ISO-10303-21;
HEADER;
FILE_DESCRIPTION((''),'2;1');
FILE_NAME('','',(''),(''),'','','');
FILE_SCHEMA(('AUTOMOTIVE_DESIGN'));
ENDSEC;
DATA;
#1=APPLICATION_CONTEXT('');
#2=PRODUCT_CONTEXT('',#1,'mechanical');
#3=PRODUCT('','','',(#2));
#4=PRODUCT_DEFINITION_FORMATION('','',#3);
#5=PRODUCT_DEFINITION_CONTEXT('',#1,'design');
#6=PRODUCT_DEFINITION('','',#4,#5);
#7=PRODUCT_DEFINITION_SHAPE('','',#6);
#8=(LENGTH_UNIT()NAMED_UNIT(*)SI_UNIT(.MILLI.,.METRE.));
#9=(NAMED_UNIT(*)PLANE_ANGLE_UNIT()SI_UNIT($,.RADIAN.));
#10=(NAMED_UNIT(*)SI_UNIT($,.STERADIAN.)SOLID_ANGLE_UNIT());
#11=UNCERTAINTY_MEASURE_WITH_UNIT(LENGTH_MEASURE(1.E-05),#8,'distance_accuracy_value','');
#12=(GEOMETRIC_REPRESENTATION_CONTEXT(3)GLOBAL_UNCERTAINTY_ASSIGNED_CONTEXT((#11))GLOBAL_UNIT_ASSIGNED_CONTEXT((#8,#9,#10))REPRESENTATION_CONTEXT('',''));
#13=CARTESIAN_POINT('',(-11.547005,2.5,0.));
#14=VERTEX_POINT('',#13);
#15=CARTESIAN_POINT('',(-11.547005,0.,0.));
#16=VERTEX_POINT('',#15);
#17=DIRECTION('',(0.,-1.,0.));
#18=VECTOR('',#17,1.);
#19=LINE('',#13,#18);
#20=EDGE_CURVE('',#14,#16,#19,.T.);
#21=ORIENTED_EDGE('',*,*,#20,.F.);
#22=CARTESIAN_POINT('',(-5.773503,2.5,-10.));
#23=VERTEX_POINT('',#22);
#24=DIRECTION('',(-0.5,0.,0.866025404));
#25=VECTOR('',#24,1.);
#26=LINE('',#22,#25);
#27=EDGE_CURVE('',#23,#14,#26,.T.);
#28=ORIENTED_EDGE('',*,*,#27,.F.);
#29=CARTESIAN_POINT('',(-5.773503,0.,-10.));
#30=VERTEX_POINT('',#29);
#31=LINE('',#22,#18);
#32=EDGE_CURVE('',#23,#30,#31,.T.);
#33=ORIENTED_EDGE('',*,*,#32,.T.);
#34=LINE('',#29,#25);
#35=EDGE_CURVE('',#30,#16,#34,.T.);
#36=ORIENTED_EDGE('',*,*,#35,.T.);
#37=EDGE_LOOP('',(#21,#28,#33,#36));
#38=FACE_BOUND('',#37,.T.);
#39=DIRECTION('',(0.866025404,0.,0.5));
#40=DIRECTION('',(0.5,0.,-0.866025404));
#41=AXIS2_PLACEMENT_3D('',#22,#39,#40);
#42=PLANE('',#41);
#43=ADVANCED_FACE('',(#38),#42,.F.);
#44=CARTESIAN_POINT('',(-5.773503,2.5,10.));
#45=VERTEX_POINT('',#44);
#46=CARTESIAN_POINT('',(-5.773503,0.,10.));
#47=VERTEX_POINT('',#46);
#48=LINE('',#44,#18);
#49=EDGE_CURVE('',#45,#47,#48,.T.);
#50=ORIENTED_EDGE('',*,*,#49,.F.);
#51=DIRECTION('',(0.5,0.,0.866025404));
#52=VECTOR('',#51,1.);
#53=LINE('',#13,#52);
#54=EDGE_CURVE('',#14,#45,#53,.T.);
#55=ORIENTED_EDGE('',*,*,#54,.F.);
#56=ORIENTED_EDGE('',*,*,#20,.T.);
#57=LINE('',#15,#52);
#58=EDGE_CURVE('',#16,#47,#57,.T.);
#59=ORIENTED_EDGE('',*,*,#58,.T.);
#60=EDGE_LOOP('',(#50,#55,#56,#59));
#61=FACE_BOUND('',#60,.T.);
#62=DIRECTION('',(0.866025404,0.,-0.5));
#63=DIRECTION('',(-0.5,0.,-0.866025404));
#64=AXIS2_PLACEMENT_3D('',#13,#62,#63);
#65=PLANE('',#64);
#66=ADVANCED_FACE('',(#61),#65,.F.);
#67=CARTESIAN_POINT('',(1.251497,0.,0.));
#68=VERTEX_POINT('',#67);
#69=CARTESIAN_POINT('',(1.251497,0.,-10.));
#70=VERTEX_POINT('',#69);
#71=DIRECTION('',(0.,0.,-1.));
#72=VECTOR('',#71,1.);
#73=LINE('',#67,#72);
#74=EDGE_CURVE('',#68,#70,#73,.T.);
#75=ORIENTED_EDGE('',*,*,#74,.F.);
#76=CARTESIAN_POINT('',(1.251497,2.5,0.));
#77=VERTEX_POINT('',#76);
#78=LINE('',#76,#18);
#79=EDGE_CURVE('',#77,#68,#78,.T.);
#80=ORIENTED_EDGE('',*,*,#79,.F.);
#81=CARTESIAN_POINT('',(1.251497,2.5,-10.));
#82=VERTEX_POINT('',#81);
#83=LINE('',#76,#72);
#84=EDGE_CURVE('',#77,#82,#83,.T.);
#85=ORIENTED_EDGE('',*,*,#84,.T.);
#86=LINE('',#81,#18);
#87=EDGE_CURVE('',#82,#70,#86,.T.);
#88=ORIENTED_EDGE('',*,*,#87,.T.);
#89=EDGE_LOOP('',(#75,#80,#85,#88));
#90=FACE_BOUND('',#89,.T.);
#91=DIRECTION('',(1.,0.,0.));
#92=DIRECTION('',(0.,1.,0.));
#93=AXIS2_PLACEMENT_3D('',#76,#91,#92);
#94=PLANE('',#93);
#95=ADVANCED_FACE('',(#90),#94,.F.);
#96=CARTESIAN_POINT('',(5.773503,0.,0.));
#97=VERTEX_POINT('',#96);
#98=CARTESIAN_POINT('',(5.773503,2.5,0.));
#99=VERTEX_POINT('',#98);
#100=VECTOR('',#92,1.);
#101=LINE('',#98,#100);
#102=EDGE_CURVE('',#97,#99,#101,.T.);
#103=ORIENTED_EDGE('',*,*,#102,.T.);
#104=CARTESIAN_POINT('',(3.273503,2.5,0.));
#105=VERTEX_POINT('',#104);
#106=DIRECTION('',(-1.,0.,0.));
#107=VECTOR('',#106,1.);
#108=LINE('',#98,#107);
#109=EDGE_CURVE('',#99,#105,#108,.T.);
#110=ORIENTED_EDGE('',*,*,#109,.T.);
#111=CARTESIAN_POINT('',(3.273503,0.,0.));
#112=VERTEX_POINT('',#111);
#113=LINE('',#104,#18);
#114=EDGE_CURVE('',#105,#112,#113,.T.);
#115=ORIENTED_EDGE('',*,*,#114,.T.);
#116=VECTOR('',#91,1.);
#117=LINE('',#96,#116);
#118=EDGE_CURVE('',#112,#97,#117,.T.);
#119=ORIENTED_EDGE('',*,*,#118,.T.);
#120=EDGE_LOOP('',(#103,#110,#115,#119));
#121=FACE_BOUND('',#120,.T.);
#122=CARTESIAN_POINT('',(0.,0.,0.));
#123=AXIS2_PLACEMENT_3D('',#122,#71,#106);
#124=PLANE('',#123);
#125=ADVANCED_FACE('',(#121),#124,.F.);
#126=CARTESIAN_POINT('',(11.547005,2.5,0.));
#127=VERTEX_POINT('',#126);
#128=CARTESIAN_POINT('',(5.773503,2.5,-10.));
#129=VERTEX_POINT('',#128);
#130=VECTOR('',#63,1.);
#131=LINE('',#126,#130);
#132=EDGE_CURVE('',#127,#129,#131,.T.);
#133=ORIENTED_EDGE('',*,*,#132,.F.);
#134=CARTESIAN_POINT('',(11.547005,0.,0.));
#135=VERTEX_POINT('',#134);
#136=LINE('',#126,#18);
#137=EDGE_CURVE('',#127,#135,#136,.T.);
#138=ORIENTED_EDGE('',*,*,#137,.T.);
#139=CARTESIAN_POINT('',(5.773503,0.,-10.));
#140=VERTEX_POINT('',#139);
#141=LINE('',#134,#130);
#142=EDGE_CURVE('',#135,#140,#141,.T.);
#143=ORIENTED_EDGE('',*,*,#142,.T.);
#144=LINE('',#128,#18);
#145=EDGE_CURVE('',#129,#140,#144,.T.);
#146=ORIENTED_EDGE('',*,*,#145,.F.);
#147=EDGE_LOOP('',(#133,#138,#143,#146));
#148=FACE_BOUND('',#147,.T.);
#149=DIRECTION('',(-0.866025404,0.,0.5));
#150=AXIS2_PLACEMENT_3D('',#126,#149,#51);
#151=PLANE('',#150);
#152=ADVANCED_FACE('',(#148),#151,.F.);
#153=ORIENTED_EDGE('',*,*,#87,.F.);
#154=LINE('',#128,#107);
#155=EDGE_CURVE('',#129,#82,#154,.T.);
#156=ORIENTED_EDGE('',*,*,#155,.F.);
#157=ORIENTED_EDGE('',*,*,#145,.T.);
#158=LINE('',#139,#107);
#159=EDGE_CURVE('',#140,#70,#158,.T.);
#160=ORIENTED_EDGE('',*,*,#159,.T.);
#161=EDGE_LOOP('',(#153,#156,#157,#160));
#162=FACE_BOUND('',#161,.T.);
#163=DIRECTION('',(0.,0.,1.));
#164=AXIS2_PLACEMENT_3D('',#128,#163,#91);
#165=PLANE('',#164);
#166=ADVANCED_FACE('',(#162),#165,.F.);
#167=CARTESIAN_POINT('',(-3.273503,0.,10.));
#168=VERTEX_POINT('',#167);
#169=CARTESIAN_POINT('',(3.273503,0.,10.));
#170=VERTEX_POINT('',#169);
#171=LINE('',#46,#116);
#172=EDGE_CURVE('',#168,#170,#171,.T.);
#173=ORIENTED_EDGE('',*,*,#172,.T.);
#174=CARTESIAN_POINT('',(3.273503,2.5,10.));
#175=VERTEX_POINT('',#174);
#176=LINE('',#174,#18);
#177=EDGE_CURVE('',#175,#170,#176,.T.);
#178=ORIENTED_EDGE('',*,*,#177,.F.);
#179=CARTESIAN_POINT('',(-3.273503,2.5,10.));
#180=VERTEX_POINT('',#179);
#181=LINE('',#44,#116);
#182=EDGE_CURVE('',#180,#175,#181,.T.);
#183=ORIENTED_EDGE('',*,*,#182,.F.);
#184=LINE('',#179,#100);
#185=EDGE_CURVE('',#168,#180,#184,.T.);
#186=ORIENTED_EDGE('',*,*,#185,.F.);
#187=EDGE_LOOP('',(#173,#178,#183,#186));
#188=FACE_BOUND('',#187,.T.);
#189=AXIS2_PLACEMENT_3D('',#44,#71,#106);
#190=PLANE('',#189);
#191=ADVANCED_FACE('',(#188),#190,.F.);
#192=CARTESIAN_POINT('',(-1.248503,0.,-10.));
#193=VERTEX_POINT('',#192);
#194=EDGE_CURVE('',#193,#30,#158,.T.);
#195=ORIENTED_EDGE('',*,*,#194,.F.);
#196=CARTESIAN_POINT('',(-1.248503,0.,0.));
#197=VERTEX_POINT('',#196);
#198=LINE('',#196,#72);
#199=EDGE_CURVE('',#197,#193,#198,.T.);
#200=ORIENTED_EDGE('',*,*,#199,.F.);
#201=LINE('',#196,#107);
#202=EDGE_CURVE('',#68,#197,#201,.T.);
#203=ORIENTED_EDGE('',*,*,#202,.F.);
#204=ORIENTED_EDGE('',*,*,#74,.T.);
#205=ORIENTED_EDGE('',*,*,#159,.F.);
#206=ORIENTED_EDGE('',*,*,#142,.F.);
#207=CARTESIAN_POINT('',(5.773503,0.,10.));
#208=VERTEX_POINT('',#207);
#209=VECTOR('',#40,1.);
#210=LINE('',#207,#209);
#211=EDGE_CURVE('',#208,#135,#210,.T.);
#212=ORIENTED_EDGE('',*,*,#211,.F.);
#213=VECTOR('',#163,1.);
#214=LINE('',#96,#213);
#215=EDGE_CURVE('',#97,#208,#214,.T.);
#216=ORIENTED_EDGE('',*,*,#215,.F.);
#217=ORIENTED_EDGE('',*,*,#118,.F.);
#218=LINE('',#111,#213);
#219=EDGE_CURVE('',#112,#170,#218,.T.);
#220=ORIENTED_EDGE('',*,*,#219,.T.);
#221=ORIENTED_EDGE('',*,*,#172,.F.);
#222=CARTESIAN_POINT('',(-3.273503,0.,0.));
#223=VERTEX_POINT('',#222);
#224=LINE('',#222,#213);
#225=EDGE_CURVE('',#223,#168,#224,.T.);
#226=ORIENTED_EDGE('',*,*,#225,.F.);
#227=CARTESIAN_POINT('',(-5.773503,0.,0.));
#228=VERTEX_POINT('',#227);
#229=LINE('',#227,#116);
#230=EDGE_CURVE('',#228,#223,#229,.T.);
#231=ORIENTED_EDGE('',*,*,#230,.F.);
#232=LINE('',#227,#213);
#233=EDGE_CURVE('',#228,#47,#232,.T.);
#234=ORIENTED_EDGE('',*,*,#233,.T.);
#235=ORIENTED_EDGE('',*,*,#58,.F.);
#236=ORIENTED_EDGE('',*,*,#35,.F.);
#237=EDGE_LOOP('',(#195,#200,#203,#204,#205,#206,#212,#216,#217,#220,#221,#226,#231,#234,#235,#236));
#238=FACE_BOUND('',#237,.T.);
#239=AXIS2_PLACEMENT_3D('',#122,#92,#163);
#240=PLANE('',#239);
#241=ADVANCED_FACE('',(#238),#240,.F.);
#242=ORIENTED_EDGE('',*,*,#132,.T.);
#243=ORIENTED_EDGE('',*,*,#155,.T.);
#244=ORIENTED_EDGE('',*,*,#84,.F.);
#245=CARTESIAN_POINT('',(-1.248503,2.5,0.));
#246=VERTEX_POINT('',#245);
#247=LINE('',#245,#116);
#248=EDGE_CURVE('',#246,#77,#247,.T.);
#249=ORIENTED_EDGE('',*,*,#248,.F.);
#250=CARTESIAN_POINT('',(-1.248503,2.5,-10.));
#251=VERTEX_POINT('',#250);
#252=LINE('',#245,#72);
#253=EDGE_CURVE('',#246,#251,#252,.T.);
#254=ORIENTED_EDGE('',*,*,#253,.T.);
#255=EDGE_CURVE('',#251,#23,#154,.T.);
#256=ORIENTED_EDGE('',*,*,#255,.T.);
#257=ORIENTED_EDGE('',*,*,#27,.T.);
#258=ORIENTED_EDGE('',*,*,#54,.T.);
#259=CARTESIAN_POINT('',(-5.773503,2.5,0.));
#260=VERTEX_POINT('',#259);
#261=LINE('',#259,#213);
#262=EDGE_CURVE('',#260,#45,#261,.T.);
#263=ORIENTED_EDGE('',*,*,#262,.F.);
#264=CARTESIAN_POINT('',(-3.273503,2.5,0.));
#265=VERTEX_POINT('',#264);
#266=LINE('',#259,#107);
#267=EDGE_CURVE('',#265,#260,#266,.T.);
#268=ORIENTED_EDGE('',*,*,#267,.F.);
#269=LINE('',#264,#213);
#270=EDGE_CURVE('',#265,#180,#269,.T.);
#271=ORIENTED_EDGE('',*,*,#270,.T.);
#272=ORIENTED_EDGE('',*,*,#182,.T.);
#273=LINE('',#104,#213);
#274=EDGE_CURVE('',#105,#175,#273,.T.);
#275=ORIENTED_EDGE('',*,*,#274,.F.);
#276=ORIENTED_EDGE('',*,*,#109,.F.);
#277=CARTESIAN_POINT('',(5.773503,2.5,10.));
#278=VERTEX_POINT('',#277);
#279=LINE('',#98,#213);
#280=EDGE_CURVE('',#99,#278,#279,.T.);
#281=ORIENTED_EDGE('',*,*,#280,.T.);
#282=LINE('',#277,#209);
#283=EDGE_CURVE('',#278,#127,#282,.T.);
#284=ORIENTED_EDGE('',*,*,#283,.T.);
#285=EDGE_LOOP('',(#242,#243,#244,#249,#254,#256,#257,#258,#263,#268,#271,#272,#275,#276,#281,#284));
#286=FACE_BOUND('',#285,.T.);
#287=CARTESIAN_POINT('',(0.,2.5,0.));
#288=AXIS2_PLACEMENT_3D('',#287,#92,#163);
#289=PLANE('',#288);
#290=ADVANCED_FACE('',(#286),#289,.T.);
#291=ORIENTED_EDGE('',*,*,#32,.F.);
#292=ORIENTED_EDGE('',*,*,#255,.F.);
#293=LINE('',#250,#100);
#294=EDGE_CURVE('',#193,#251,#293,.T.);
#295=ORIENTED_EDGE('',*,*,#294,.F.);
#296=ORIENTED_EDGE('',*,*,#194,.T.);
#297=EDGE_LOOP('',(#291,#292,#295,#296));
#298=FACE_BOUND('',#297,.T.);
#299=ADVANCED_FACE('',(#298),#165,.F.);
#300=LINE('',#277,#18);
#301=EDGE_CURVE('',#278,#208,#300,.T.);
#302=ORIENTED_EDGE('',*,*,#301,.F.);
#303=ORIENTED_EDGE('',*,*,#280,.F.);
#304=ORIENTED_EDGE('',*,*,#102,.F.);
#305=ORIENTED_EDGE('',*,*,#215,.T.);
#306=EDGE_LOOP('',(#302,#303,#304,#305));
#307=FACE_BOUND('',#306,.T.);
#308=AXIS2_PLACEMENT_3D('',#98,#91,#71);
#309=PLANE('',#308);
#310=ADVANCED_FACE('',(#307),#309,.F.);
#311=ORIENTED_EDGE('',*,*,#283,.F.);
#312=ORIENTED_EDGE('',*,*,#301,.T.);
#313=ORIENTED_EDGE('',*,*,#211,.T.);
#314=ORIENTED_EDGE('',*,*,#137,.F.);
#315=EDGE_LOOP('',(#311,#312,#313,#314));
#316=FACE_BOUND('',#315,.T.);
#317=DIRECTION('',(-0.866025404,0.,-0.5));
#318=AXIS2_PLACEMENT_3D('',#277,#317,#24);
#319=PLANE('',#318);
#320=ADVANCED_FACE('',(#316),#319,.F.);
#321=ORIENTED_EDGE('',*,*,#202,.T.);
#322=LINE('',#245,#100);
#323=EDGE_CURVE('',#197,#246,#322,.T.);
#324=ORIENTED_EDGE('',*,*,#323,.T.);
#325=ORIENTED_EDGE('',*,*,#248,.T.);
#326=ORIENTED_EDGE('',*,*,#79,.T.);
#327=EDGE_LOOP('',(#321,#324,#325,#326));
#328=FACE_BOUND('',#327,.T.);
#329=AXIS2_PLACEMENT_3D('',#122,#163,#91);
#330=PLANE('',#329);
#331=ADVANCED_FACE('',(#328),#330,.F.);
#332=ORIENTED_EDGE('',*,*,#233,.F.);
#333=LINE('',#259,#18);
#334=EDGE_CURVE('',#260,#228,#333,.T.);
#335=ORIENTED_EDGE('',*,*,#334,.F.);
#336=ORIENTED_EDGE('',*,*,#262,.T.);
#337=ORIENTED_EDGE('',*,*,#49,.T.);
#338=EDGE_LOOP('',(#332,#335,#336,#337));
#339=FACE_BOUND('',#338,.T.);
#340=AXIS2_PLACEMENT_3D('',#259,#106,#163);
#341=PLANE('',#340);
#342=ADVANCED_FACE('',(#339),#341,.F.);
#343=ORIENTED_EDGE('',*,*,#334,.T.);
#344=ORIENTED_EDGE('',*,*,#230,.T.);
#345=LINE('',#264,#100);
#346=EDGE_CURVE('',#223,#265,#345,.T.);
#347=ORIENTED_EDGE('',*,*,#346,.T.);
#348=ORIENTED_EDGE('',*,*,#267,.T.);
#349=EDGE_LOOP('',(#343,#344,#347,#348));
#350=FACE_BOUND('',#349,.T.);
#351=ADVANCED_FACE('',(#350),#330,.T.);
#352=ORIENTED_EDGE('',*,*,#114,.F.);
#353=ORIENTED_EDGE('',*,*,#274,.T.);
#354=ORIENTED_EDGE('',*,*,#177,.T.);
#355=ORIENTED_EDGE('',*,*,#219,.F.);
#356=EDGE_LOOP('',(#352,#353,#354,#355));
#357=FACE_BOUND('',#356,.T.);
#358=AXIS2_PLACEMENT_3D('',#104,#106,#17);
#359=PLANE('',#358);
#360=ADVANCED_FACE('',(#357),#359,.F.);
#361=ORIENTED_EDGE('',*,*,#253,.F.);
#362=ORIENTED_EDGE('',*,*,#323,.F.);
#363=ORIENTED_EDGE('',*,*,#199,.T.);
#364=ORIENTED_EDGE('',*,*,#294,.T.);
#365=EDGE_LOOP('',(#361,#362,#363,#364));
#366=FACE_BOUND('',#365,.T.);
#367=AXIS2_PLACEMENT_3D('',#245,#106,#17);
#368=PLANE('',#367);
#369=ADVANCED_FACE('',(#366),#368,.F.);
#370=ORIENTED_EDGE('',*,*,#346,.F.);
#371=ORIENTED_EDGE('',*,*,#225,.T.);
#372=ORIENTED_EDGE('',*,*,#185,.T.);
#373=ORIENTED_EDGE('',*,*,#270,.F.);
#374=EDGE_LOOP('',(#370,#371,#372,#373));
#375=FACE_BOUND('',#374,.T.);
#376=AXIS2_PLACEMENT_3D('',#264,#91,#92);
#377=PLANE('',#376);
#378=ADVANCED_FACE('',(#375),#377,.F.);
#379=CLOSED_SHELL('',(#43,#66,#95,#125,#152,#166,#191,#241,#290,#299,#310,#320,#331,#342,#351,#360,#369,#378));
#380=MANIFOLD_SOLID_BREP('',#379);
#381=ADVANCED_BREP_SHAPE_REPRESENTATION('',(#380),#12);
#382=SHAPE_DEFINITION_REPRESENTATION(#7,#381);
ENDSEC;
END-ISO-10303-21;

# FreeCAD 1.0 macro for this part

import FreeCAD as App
import Part
import Sketcher
Q = App.Units.Quantity

doc = App.newDocument("Part")
body = doc.addObject("PartDesign::Body", "Body")

sketch1 = doc.addObject("Sketcher::SketchObject", "Sketch")
body.addObject(sketch1)
sketch1.AttachmentSupport = (doc.XZ_Plane, [""])
sketch1.MapMode = "FlatFace"
sketch1.addGeometry(Part.LineSegment(App.Vector(12, 0, 0), App.Vector(6, -10, 0)), False)
sketch1.addGeometry(Part.LineSegment(App.Vector(6, -10, 0), App.Vector(-6, -10, 0)), False)
sketch1.addGeometry(Part.LineSegment(App.Vector(-6, -10, 0), App.Vector(-12, 0, 0)), False)
sketch1.addGeometry(Part.LineSegment(App.Vector(-12, 0, 0), App.Vector(-6, 10, 0)), False)
sketch1.addGeometry(Part.LineSegment(App.Vector(-6, 10, 0), App.Vector(6, 10, 0)), False)
sketch1.addGeometry(Part.LineSegment(App.Vector(6, 10, 0), App.Vector(12, 0, 0)), False)
sketch1.addConstraint(Sketcher.Constraint("Coincident", 0, 2, 1, 1))
sketch1.addConstraint(Sketcher.Constraint("Coincident", 1, 2, 2, 1))
sketch1.addConstraint(Sketcher.Constraint("Coincident", 2, 2, 3, 1))
sketch1.addConstraint(Sketcher.Constraint("Coincident", 3, 2, 4, 1))
sketch1.addConstraint(Sketcher.Constraint("Coincident", 4, 2, 5, 1))
sketch1.addConstraint(Sketcher.Constraint("Coincident", 5, 2, 0, 1))
sketch1.addConstraint(Sketcher.Constraint("Horizontal", 1))
sketch1.addConstraint(Sketcher.Constraint("Horizontal", 4))
sketch1.addConstraint(Sketcher.Constraint("Symmetric", 0, 2, 3, 2, -1, 1))
sketch1.addConstraint(Sketcher.Constraint("Symmetric", 2, 2, 5, 2, -1, 1))
sketch1.addConstraint(Sketcher.Constraint("PointOnObject", 2, 2, -1))
sketch1.addConstraint(Sketcher.Constraint("Parallel", 2, 5))
sketch1.addConstraint(Sketcher.Constraint("Vertical", 1, 2, 3, 2))
sketch1.addConstraint(Sketcher.Constraint("Angle", 0, Q("-120 deg")))
sketch1.addConstraint(Sketcher.Constraint("DistanceY", 0, 2, -1, 1, Q("10 mm")))
sketch1.addConstraint(Sketcher.Constraint("DistanceX", 1, 2, 1, 1, Q("11.547005 mm")))
pad1 = doc.addObject("PartDesign::Pad", "Pad")
body.addObject(pad1)
pad1.Profile = sketch1
pad1.Length = 2.5
pad1.Reversed = True

sketch2 = doc.addObject("Sketcher::SketchObject", "Sketch001")
body.addObject(sketch2)
sketch2.AttachmentSupport = (doc.XY_Plane, [""])
sketch2.MapMode = "FlatFace"
sketch2.AttachmentOffset = App.Placement(App.Vector(0, 0, 10), App.Rotation())
sketch2.addGeometry(Part.LineSegment(App.Vector(-5.8, 2.5, 0), App.Vector(-5.8, 0, 0)), False)
sketch2.addGeometry(Part.LineSegment(App.Vector(-5.8, 0, 0), App.Vector(-3.3, 0, 0)), False)
sketch2.addGeometry(Part.LineSegment(App.Vector(-3.3, 0, 0), App.Vector(-3.3, 2.5, 0)), False)
sketch2.addGeometry(Part.LineSegment(App.Vector(-3.3, 2.5, 0), App.Vector(-5.8, 2.5, 0)), False)
sketch2.addConstraint(Sketcher.Constraint("Coincident", 0, 2, 1, 1))
sketch2.addConstraint(Sketcher.Constraint("Coincident", 1, 2, 2, 1))
sketch2.addConstraint(Sketcher.Constraint("Coincident", 2, 2, 3, 1))
sketch2.addConstraint(Sketcher.Constraint("Coincident", 3, 2, 0, 1))
sketch2.addConstraint(Sketcher.Constraint("Vertical", 0))
sketch2.addConstraint(Sketcher.Constraint("Horizontal", 1))
sketch2.addConstraint(Sketcher.Constraint("Vertical", 2))
sketch2.addConstraint(Sketcher.Constraint("Horizontal", 3))
sketch2.addConstraint(Sketcher.Constraint("PointOnObject", 0, 2, -1))
sketch2.addConstraint(Sketcher.Constraint("Equal", 3, 0))
sketch2.addConstraint(Sketcher.Constraint("DistanceX", 1, 1, 1, 2, Q("2.5 mm")))
sketch2.addConstraint(Sketcher.Constraint("DistanceX", 0, 2, -1, 1, Q("5.773503 mm")))
pocket1 = doc.addObject("PartDesign::Pocket", "Pocket")
body.addObject(pocket1)
pocket1.Profile = sketch2
pocket1.Length = 10

sketch3 = doc.addObject("Sketcher::SketchObject", "Sketch002")
body.addObject(sketch3)
sketch3.AttachmentSupport = (doc.XY_Plane, [""])
sketch3.MapMode = "FlatFace"
sketch3.AttachmentOffset = App.Placement(App.Vector(0, 0, 10), App.Rotation())
sketch3.addGeometry(Part.LineSegment(App.Vector(3.3, 2.5, 0), App.Vector(3.3, 0, 0)), False)
sketch3.addGeometry(Part.LineSegment(App.Vector(3.3, 0, 0), App.Vector(5.8, 0, 0)), False)
sketch3.addGeometry(Part.LineSegment(App.Vector(5.8, 0, 0), App.Vector(5.8, 2.5, 0)), False)
sketch3.addGeometry(Part.LineSegment(App.Vector(5.8, 2.5, 0), App.Vector(3.3, 2.5, 0)), False)
sketch3.addConstraint(Sketcher.Constraint("Coincident", 0, 2, 1, 1))
sketch3.addConstraint(Sketcher.Constraint("Coincident", 1, 2, 2, 1))
sketch3.addConstraint(Sketcher.Constraint("Coincident", 2, 2, 3, 1))
sketch3.addConstraint(Sketcher.Constraint("Coincident", 3, 2, 0, 1))
sketch3.addConstraint(Sketcher.Constraint("Vertical", 0))
sketch3.addConstraint(Sketcher.Constraint("Horizontal", 1))
sketch3.addConstraint(Sketcher.Constraint("Vertical", 2))
sketch3.addConstraint(Sketcher.Constraint("Horizontal", 3))
sketch3.addConstraint(Sketcher.Constraint("PointOnObject", 0, 2, -1))
sketch3.addConstraint(Sketcher.Constraint("Equal", 3, 0))
sketch3.addConstraint(Sketcher.Constraint("DistanceX", 1, 1, 1, 2, Q("2.5 mm")))
sketch3.addConstraint(Sketcher.Constraint("DistanceX", -1, 1, 0, 2, Q("3.273503 mm")))
pocket2 = doc.addObject("PartDesign::Pocket", "Pocket001")
body.addObject(pocket2)
pocket2.Profile = sketch3
pocket2.Length = 10

sketch4 = doc.addObject("Sketcher::SketchObject", "Sketch003")
body.addObject(sketch4)
sketch4.AttachmentSupport = (doc.XY_Plane, [""])
sketch4.MapMode = "FlatFace"
sketch4.AttachmentOffset = App.Placement(App.Vector(0, 0, -10), App.Rotation())
sketch4.addGeometry(Part.LineSegment(App.Vector(1.3, 2.5, 0), App.Vector(1.3, 0, 0)), False)
sketch4.addGeometry(Part.LineSegment(App.Vector(1.3, 0, 0), App.Vector(-1.2, 0, 0)), False)
sketch4.addGeometry(Part.LineSegment(App.Vector(-1.2, 0, 0), App.Vector(-1.2, 2.5, 0)), False)
sketch4.addGeometry(Part.LineSegment(App.Vector(-1.2, 2.5, 0), App.Vector(1.3, 2.5, 0)), False)
sketch4.addConstraint(Sketcher.Constraint("Coincident", 0, 2, 1, 1))
sketch4.addConstraint(Sketcher.Constraint("Coincident", 1, 2, 2, 1))
sketch4.addConstraint(Sketcher.Constraint("Coincident", 2, 2, 3, 1))
sketch4.addConstraint(Sketcher.Constraint("Coincident", 3, 2, 0, 1))
sketch4.addConstraint(Sketcher.Constraint("Vertical", 0))
sketch4.addConstraint(Sketcher.Constraint("Horizontal", 1))
sketch4.addConstraint(Sketcher.Constraint("Vertical", 2))
sketch4.addConstraint(Sketcher.Constraint("Horizontal", 3))
sketch4.addConstraint(Sketcher.Constraint("PointOnObject", 0, 2, -1))
sketch4.addConstraint(Sketcher.Constraint("Equal", 3, 0))
sketch4.addConstraint(Sketcher.Constraint("DistanceX", 1, 2, 1, 1, Q("2.5 mm")))
sketch4.addConstraint(Sketcher.Constraint("DistanceX", -1, 1, 0, 2, Q("1.251497 mm")))
pocket3 = doc.addObject("PartDesign::Pocket", "Pocket002")
body.addObject(pocket3)
pocket3.Profile = sketch4
pocket3.Length = 10
pocket3.Reversed = True

doc.recompute()
